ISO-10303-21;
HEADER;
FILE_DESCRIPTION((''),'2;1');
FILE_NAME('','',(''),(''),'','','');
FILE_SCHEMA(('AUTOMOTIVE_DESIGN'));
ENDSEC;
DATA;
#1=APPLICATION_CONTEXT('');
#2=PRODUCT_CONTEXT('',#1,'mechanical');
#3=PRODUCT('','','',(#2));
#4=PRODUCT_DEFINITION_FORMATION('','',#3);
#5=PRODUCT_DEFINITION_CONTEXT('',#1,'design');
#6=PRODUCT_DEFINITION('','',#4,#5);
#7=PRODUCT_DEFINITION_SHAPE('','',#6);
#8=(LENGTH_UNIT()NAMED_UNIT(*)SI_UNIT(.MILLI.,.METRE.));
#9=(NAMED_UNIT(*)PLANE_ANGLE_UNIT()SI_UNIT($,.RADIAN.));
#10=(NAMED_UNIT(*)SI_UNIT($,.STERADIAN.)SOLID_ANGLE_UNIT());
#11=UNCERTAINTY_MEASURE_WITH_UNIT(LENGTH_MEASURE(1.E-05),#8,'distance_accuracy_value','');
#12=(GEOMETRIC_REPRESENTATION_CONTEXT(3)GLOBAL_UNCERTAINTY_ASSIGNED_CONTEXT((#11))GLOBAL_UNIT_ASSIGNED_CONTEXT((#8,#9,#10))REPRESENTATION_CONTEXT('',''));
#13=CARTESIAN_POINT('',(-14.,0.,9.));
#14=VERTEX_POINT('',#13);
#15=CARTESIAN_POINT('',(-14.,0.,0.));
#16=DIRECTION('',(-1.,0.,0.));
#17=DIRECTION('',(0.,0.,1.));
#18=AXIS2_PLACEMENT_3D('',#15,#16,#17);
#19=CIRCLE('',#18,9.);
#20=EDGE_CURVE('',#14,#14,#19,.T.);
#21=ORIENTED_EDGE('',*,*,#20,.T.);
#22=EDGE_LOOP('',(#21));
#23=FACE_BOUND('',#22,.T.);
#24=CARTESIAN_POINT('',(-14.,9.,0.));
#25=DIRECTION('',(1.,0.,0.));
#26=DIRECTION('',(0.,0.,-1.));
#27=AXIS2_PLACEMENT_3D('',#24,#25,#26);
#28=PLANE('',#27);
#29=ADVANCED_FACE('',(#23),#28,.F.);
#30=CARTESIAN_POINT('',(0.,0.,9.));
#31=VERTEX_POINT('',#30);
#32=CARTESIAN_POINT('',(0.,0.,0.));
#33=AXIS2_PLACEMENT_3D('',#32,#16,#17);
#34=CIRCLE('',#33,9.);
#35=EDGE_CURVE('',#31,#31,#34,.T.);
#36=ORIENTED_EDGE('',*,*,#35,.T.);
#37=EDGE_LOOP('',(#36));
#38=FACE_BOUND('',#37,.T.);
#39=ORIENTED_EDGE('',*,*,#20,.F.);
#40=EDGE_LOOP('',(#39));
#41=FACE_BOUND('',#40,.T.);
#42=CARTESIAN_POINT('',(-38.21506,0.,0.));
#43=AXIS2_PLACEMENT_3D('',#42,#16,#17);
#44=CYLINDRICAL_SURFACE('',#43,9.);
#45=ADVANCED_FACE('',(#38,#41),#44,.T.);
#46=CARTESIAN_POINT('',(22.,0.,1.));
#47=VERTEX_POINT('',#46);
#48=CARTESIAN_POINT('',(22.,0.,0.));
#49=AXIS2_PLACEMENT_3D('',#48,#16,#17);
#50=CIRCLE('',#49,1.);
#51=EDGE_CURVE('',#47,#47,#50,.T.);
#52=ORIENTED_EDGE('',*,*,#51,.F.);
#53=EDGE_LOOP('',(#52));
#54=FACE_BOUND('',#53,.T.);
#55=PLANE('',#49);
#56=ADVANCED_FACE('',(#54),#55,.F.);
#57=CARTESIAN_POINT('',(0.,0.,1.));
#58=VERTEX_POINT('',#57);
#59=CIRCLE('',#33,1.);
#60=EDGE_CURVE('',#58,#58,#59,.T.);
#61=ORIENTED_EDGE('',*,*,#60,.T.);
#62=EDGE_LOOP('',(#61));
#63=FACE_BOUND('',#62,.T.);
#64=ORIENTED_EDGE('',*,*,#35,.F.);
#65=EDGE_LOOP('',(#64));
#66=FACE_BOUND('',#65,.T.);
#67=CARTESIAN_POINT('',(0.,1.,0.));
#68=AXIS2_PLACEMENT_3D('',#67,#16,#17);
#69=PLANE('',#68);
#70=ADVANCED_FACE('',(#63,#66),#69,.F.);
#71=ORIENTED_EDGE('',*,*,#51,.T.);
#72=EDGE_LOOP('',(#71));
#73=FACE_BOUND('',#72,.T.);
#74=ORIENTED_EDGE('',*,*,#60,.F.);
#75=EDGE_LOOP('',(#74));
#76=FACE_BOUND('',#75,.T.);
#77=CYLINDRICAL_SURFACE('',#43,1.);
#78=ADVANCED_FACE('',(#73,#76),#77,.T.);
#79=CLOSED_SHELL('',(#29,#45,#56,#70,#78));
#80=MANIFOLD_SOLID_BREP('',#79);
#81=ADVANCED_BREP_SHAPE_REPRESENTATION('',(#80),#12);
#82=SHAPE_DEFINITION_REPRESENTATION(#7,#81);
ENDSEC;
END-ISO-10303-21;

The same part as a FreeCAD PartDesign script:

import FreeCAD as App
import Part
import Sketcher
from FreeCAD import Vector
Q = App.Units.Quantity

doc = App.newDocument("Part")
params = doc.addObject("Spreadsheet::Sheet", "Params")
for row, (alias, value) in enumerate([
    ("sketch1_width", "22 mm"),
    ("sketch1_width2", "14 mm"),
    ("sketch1_height", "1 mm"),
    ("sketch1_height2", "8 mm"),
    ("revolution_angle", "360 deg"),
], start=1):
    params.set(f"A{row}", alias)
    params.set(f"B{row}", "=" + value)
    params.setAlias(f"B{row}", alias)

body = doc.addObject("PartDesign::Body", "Body")

sketch1 = body.newObject("Sketcher::SketchObject", "Sketch")
sketch1.AttachmentSupport = (doc.getObject("XY_Plane"), [""])
sketch1.MapMode = "FlatFace"
sketch1.addGeometry([
    Part.LineSegment(Vector(22, 0, 0), Vector(22, 1, 0)),
    Part.LineSegment(Vector(22, 1, 0), Vector(0, 1, 0)),
    Part.LineSegment(Vector(0, 1, 0), Vector(0, 9, 0)),
    Part.LineSegment(Vector(0, 9, 0), Vector(-14, 9, 0)),
    Part.LineSegment(Vector(-14, 9, 0), Vector(-14, 0, 0)),
    Part.LineSegment(Vector(-14, 0, 0), Vector(22, 0, 0)),
], False)
sketch1.addConstraint([
    Sketcher.Constraint("Coincident", 0, 2, 1, 1),
    Sketcher.Constraint("Coincident", 1, 2, 2, 1),
    Sketcher.Constraint("Coincident", 2, 2, 3, 1),
    Sketcher.Constraint("Coincident", 3, 2, 4, 1),
    Sketcher.Constraint("Coincident", 4, 2, 5, 1),
    Sketcher.Constraint("Coincident", 5, 2, 0, 1),
    Sketcher.Constraint("Vertical", 0),
    Sketcher.Constraint("Horizontal", 1),
    Sketcher.Constraint("Vertical", 2),
    Sketcher.Constraint("Horizontal", 3),
    Sketcher.Constraint("Vertical", 4),
    Sketcher.Constraint("Horizontal", 5),
    Sketcher.Constraint("PointOnObject", 1, 2, -2),
    Sketcher.Constraint("PointOnObject", 4, 2, -1),
    Sketcher.Constraint("DistanceX", 1, 2, 1, 1, Q("22 mm")),
    Sketcher.Constraint("DistanceX", 3, 2, 3, 1, Q("14 mm")),
    Sketcher.Constraint("DistanceY", 0, 1, 0, 2, Q("1 mm")),
    Sketcher.Constraint("DistanceY", 2, 1, 2, 2, Q("8 mm")),
])
sketch1.setExpression("Constraints[14]", "Params.sketch1_width")
sketch1.setExpression("Constraints[15]", "Params.sketch1_width2")
sketch1.setExpression("Constraints[16]", "Params.sketch1_height")
sketch1.setExpression("Constraints[17]", "Params.sketch1_height2")
revolution = body.newObject("PartDesign::Revolution", "Revolution")
revolution.Profile = sketch1
revolution.ReferenceAxis = (sketch1, ["H_Axis"])
revolution.setExpression("Angle", "Params.revolution_angle")

doc.recompute()
